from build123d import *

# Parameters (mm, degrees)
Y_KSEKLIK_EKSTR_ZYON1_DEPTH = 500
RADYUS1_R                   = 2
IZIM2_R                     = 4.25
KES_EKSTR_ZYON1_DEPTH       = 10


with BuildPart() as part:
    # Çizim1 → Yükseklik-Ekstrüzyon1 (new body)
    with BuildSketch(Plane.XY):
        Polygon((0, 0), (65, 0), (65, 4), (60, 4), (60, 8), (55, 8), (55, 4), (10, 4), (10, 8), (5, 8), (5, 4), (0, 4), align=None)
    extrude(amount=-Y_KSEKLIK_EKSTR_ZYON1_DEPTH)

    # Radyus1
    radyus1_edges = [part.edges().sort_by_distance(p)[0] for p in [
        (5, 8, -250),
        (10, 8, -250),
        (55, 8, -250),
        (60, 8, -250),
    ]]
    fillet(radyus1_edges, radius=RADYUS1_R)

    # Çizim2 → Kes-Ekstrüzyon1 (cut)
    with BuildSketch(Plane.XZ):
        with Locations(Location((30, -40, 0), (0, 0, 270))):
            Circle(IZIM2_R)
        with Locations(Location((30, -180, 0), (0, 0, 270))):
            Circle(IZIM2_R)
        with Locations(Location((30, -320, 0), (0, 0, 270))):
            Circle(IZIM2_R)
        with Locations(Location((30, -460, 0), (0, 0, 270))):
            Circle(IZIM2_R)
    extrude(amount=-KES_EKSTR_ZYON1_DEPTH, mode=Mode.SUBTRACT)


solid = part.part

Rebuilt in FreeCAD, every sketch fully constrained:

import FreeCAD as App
import Part
import Sketcher


def edges_at(feature, points):
    """Names of the edges that pass closest to the given points."""
    edges = feature.Shape.Edges
    near = lambda p: min(range(len(edges)), key=lambda i: edges[i].distToShape(Part.Vertex(*p))[0])
    return sorted({f"Edge{near(p) + 1}" for p in points})

doc = App.newDocument("Part")
body = doc.addObject("PartDesign::Body", "Body")

sketch1 = body.newObject("Sketcher::SketchObject", "Sketch")
sketch1.AttachmentSupport = (doc.getObject("XY_Plane"), [""])
sketch1.MapMode = "FlatFace"
sketch1.addGeometry(Part.LineSegment(App.Vector(0, 0, 0), App.Vector(65, 0, 0)), False)
sketch1.addGeometry(Part.LineSegment(App.Vector(65, 0, 0), App.Vector(65, 4, 0)), False)
sketch1.addGeometry(Part.LineSegment(App.Vector(65, 4, 0), App.Vector(60, 4, 0)), False)
sketch1.addGeometry(Part.LineSegment(App.Vector(60, 4, 0), App.Vector(60, 8, 0)), False)
sketch1.addGeometry(Part.LineSegment(App.Vector(60, 8, 0), App.Vector(55, 8, 0)), False)
sketch1.addGeometry(Part.LineSegment(App.Vector(55, 8, 0), App.Vector(55, 4, 0)), False)
sketch1.addGeometry(Part.LineSegment(App.Vector(55, 4, 0), App.Vector(10, 4, 0)), False)
sketch1.addGeometry(Part.LineSegment(App.Vector(10, 4, 0), App.Vector(10, 8, 0)), False)
sketch1.addGeometry(Part.LineSegment(App.Vector(10, 8, 0), App.Vector(5, 8, 0)), False)
sketch1.addGeometry(Part.LineSegment(App.Vector(5, 8, 0), App.Vector(5, 4, 0)), False)
sketch1.addGeometry(Part.LineSegment(App.Vector(5, 4, 0), App.Vector(0, 4, 0)), False)
sketch1.addGeometry(Part.LineSegment(App.Vector(0, 4, 0), App.Vector(0, 0, 0)), False)
sketch1.addConstraint(Sketcher.Constraint("Coincident", 0, 2, 1, 1))
sketch1.addConstraint(Sketcher.Constraint("Coincident", 1, 2, 2, 1))
sketch1.addConstraint(Sketcher.Constraint("Coincident", 2, 2, 3, 1))
sketch1.addConstraint(Sketcher.Constraint("Coincident", 3, 2, 4, 1))
sketch1.addConstraint(Sketcher.Constraint("Coincident", 4, 2, 5, 1))
sketch1.addConstraint(Sketcher.Constraint("Coincident", 5, 2, 6, 1))
sketch1.addConstraint(Sketcher.Constraint("Coincident", 6, 2, 7, 1))
sketch1.addConstraint(Sketcher.Constraint("Coincident", 7, 2, 8, 1))
sketch1.addConstraint(Sketcher.Constraint("Coincident", 8, 2, 9, 1))
sketch1.addConstraint(Sketcher.Constraint("Coincident", 9, 2, 10, 1))
sketch1.addConstraint(Sketcher.Constraint("Coincident", 10, 2, 11, 1))
sketch1.addConstraint(Sketcher.Constraint("Coincident", 11, 2, 0, 1))
sketch1.addConstraint(Sketcher.Constraint("Horizontal", 0))
sketch1.addConstraint(Sketcher.Constraint("Vertical", 1))
sketch1.addConstraint(Sketcher.Constraint("Horizontal", 2))
sketch1.addConstraint(Sketcher.Constraint("Vertical", 3))
sketch1.addConstraint(Sketcher.Constraint("Horizontal", 4))
sketch1.addConstraint(Sketcher.Constraint("Vertical", 5))
sketch1.addConstraint(Sketcher.Constraint("Horizontal", 6))
sketch1.addConstraint(Sketcher.Constraint("Vertical", 7))
sketch1.addConstraint(Sketcher.Constraint("Horizontal", 8))
sketch1.addConstraint(Sketcher.Constraint("Vertical", 9))
sketch1.addConstraint(Sketcher.Constraint("Horizontal", 10))
sketch1.addConstraint(Sketcher.Constraint("Vertical", 11))
sketch1.addConstraint(Sketcher.Constraint("Coincident", 11, 2, -1, 1))
sketch1.addConstraint(Sketcher.Constraint("Horizontal", 2, 2, 5, 2))
sketch1.addConstraint(Sketcher.Constraint("Horizontal", 4, 2, 7, 2))
sketch1.addConstraint(Sketcher.Constraint("Horizontal", 6, 2, 9, 2))
sketch1.addConstraint(Sketcher.Constraint("Equal", 2, 4))
sketch1.addConstraint(Sketcher.Constraint("Equal", 4, 8))
sketch1.addConstraint(Sketcher.Constraint("Equal", 8, 10))
sketch1.addConstraint(Sketcher.Constraint("Equal", 1, 3))
sketch1.addConstraint(Sketcher.Constraint("DistanceX", 0, 1, 0, 2, 65.0))
sketch1.addConstraint(Sketcher.Constraint("DistanceX", 2, 2, 2, 1, 5.0))
sketch1.addConstraint(Sketcher.Constraint("DistanceY", 1, 1, 1, 2, 4.0))
pad1 = body.newObject("PartDesign::Pad", "Pad")
pad1.Profile = sketch1
pad1.Length = 500
pad1.Reversed = True
doc.recompute()

fillet = body.newObject("PartDesign::Fillet", "Fillet")
fillet.Base = (pad1, edges_at(pad1, [
    (5, 8, -250),
    (10, 8, -250),
    (55, 8, -250),
    (60, 8, -250),
]))
fillet.Radius = 2

sketch2 = body.newObject("Sketcher::SketchObject", "Sketch001")
sketch2.AttachmentSupport = (doc.getObject("XZ_Plane"), [""])
sketch2.MapMode = "FlatFace"
sketch2.addGeometry(Part.Circle(App.Vector(30, -40, 0), App.Vector(0, 0, 1), 4.25), False)
sketch2.addGeometry(Part.Circle(App.Vector(30, -180, 0), App.Vector(0, 0, 1), 4.25), False)
sketch2.addGeometry(Part.Circle(App.Vector(30, -320, 0), App.Vector(0, 0, 1), 4.25), False)
sketch2.addGeometry(Part.Circle(App.Vector(30, -460, 0), App.Vector(0, 0, 1), 4.25), False)
sketch2.addConstraint(Sketcher.Constraint("Equal", 0, 1))
sketch2.addConstraint(Sketcher.Constraint("Equal", 1, 2))
sketch2.addConstraint(Sketcher.Constraint("Equal", 2, 3))
sketch2.addConstraint(Sketcher.Constraint("Vertical", 0, 3, 1, 3))
sketch2.addConstraint(Sketcher.Constraint("Vertical", 1, 3, 2, 3))
sketch2.addConstraint(Sketcher.Constraint("Vertical", 2, 3, 3, 3))
sketch2.addConstraint(Sketcher.Constraint("Diameter", 0, 8.5))
sketch2.addConstraint(Sketcher.Constraint("DistanceX", -1, 1, 0, 3, 30.0))
sketch2.addConstraint(Sketcher.Constraint("DistanceY", 0, 3, -1, 1, 40.0))
sketch2.addConstraint(Sketcher.Constraint("DistanceY", 1, 3, -1, 1, 180.0))
sketch2.addConstraint(Sketcher.Constraint("DistanceY", 2, 3, -1, 1, 320.0))
sketch2.addConstraint(Sketcher.Constraint("DistanceY", 3, 3, -1, 1, 460.0))
pocket1 = body.newObject("PartDesign::Pocket", "Pocket")
pocket1.Profile = sketch2
pocket1.Length = 10

doc.recompute()
